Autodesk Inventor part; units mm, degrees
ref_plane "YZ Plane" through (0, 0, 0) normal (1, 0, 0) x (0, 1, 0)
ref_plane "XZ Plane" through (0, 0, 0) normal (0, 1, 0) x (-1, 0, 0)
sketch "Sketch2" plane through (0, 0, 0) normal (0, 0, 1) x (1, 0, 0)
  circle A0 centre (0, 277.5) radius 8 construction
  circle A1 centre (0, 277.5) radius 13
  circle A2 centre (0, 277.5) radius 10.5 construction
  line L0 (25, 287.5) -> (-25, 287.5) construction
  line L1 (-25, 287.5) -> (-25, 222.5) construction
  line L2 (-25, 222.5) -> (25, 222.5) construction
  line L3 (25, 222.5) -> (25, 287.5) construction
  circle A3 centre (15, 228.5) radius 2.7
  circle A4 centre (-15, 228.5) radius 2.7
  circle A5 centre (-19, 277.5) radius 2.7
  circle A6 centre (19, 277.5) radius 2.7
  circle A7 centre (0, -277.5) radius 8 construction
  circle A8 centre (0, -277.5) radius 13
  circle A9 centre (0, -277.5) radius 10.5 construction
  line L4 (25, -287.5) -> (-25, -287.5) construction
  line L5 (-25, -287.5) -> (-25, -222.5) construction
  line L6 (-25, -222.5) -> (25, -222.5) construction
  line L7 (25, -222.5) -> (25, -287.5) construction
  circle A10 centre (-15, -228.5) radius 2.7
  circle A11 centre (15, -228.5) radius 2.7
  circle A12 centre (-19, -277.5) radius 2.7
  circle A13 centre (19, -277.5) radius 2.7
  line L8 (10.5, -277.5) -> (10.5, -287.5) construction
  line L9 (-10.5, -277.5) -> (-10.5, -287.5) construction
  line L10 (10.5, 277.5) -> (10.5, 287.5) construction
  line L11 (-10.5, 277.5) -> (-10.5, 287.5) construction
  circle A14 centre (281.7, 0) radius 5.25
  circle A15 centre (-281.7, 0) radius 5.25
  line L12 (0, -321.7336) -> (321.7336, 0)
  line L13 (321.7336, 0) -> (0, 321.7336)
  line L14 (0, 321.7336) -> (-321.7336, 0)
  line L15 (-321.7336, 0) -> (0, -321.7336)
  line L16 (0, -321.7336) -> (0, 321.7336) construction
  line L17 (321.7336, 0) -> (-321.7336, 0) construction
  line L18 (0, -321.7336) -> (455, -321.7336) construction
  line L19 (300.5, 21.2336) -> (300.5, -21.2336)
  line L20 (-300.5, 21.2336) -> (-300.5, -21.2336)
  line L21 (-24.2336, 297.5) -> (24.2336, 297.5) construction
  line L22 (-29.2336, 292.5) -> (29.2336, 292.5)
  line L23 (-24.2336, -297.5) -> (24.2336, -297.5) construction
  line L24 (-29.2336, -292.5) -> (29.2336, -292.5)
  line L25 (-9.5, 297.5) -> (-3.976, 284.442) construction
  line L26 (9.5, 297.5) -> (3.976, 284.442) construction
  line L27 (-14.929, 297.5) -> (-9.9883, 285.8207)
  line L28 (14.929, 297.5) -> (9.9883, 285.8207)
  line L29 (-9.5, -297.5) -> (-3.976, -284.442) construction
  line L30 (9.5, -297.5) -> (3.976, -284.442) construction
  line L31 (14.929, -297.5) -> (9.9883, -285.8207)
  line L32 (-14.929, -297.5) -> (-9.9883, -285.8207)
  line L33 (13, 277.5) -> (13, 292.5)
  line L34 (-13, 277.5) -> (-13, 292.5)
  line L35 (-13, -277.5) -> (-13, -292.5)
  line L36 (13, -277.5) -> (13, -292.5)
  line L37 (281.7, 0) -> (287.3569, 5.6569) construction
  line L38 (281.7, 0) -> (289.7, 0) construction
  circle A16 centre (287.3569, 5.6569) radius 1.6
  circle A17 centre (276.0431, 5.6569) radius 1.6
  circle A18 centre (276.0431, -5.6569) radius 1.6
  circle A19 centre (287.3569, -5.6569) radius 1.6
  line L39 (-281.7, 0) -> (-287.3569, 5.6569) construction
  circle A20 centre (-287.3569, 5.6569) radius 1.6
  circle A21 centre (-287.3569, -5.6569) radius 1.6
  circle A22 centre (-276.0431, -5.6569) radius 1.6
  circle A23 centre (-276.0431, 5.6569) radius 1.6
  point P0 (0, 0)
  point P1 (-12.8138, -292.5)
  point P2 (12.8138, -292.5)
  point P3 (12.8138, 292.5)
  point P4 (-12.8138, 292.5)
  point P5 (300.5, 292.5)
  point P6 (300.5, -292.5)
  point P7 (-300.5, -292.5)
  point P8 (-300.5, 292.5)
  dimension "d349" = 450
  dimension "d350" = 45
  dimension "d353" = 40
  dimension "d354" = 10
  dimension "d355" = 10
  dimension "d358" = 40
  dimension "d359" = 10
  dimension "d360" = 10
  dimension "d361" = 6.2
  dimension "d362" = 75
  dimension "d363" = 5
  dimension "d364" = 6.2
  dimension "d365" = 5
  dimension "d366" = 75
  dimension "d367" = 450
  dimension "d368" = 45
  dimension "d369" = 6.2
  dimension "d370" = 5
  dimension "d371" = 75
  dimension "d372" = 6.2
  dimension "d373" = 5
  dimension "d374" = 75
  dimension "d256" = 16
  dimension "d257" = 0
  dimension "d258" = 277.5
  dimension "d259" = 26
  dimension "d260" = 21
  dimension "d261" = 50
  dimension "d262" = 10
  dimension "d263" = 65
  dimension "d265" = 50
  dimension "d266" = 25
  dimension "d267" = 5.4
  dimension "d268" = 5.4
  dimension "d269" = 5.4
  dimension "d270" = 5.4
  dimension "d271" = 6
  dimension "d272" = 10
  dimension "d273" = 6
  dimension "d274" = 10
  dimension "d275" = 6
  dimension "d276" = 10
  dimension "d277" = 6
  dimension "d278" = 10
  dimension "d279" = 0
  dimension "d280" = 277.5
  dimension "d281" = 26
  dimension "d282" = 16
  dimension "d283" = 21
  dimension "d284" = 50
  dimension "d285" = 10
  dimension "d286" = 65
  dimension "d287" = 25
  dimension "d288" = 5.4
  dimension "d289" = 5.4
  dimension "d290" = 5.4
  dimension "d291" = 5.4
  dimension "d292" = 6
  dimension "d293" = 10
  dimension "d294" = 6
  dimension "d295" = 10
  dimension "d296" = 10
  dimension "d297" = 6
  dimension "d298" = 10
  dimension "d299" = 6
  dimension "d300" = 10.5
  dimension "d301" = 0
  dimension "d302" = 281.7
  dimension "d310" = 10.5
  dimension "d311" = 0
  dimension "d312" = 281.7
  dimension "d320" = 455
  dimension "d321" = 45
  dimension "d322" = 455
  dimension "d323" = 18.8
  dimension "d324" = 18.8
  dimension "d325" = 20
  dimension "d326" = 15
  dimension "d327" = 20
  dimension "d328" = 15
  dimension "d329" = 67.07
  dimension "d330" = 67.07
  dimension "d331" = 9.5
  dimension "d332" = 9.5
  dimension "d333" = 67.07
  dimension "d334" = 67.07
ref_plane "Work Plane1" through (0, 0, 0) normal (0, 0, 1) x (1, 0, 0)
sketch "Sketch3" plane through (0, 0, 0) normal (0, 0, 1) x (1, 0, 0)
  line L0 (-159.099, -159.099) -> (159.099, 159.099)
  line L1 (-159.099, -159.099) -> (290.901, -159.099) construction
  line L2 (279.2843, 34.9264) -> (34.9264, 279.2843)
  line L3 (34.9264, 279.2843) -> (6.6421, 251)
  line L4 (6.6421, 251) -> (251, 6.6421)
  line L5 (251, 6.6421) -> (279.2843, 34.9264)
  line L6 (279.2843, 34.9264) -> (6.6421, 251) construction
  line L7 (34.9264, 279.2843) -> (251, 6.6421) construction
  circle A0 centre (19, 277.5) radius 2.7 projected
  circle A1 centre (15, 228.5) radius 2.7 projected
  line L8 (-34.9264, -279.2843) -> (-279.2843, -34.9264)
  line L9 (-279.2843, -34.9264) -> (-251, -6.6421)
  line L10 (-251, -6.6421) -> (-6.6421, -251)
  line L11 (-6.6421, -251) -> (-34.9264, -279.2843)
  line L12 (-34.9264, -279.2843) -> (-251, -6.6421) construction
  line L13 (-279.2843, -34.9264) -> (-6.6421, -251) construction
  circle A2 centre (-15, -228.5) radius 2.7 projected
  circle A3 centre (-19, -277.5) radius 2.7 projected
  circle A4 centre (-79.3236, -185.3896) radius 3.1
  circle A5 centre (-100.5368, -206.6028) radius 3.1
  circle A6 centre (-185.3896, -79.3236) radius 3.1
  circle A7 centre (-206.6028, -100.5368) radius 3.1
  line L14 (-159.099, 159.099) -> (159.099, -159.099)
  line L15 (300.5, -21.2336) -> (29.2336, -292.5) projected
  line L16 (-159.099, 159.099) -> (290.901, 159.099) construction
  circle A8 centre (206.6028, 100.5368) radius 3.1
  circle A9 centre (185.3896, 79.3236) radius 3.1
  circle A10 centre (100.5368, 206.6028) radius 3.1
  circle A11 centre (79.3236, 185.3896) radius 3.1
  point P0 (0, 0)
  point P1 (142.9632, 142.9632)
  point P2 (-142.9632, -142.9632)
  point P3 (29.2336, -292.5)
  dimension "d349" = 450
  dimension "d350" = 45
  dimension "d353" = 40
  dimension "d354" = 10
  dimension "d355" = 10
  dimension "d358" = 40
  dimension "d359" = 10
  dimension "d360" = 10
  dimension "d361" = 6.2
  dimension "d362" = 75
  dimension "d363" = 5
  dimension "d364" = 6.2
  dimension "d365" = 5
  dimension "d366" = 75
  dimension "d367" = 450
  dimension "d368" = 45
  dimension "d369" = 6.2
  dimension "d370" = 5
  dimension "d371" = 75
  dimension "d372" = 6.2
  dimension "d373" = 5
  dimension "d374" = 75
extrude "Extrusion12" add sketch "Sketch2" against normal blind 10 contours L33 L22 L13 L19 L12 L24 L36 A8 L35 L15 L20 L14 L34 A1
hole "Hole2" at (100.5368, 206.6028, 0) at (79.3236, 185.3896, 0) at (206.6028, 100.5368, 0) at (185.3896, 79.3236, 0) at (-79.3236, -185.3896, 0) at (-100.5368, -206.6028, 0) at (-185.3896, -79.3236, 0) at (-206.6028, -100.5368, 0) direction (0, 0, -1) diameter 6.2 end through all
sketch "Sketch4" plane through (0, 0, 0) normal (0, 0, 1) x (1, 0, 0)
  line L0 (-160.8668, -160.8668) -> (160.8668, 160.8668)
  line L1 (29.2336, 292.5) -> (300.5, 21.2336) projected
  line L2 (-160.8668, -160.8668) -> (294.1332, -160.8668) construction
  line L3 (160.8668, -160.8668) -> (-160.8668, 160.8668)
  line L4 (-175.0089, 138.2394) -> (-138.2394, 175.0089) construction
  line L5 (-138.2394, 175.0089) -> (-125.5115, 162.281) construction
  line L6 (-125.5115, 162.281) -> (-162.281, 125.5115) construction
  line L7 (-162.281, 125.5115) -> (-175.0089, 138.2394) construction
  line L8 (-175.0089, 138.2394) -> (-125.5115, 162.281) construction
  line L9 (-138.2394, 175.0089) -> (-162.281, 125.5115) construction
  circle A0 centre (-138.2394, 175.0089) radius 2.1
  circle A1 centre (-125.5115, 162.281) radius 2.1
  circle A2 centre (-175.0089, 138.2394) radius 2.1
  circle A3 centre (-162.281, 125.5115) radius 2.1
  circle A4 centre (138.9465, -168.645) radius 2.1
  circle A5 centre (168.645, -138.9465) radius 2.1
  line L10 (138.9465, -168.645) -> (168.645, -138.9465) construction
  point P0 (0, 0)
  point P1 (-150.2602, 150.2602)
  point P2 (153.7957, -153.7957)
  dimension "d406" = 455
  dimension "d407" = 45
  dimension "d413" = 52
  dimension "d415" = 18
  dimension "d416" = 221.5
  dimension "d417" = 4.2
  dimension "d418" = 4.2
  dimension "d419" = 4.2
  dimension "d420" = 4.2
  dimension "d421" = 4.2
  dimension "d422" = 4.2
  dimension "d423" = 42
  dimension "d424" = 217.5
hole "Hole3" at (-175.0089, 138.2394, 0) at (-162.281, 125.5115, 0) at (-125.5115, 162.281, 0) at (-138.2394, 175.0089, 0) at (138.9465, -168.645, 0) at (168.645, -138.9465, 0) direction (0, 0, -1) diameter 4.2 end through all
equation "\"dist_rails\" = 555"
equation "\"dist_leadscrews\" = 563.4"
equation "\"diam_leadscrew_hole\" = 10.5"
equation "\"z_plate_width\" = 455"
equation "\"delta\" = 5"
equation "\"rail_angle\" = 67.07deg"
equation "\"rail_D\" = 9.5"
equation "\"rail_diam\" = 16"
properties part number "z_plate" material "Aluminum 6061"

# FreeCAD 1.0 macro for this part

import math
import FreeCAD as App
import Part
import Sketcher
from FreeCAD import Vector
Q = App.Units.Quantity

doc = App.newDocument("Part")
body = doc.addObject("PartDesign::Body", "Body")

# Sketch on XY plane
sketch1 = body.newObject("Sketcher::SketchObject", "Sketch")
sketch1.AttachmentSupport = (doc.getObject("XY_Plane"), [""])
sketch1.MapMode = "FlatFace"
sketch1.addGeometry([
    Part.LineSegment(Vector(13, 292.5, 0), Vector(13, 277.5, 0)),  # 0
    Part.ArcOfCircle(Part.Circle(Vector(0, 277.5, 0), Vector(0, 0, 1), 13), math.radians(180), math.radians(360)),  # 1
    Part.LineSegment(Vector(-13, 277.5, 0), Vector(-13, 292.5, 0)),  # 2
    Part.LineSegment(Vector(-13, 292.5, 0), Vector(-29.2, 292.5, 0)),  # 3
    Part.LineSegment(Vector(-29.2, 292.5, 0), Vector(-300.5, 21.2, 0)),  # 4
    Part.LineSegment(Vector(-300.5, 21.2, 0), Vector(-300.5, -21.2, 0)),  # 5
    Part.LineSegment(Vector(-300.5, -21.2, 0), Vector(-29.2, -292.5, 0)),  # 6
    Part.LineSegment(Vector(-29.2, -292.5, 0), Vector(-13, -292.5, 0)),  # 7
    Part.LineSegment(Vector(-13, -292.5, 0), Vector(-13, -277.5, 0)),  # 8
    Part.ArcOfCircle(Part.Circle(Vector(0, -277.5, 0), Vector(0, 0, 1), 13), math.radians(0), math.radians(180)),  # 9
    Part.LineSegment(Vector(13, -277.5, 0), Vector(13, -292.5, 0)),  # 10
    Part.LineSegment(Vector(13, -292.5, 0), Vector(29.2, -292.5, 0)),  # 11
    Part.LineSegment(Vector(29.2, -292.5, 0), Vector(300.5, -21.2, 0)),  # 12
    Part.LineSegment(Vector(300.5, -21.2, 0), Vector(300.5, 21.2, 0)),  # 13
    Part.LineSegment(Vector(300.5, 21.2, 0), Vector(29.2, 292.5, 0)),  # 14
    Part.LineSegment(Vector(29.2, 292.5, 0), Vector(13, 292.5, 0)),  # 15
    Part.Circle(Vector(-19, -277.5, 0), Vector(0, 0, 1), 2.7),  # 16
    Part.Circle(Vector(-15, -228.5, 0), Vector(0, 0, 1), 2.7),  # 17
    Part.Circle(Vector(-287.4, -5.7, 0), Vector(0, 0, 1), 1.6),  # 18
    Part.Circle(Vector(-276, -5.7, 0), Vector(0, 0, 1), 1.6),  # 19
    Part.Circle(Vector(19, -277.5, 0), Vector(0, 0, 1), 2.7),  # 20
    Part.Circle(Vector(15, -228.5, 0), Vector(0, 0, 1), 2.7),  # 21
    Part.Circle(Vector(276, -5.7, 0), Vector(0, 0, 1), 1.6),  # 22
    Part.Circle(Vector(287.4, -5.7, 0), Vector(0, 0, 1), 1.6),  # 23
    Part.Circle(Vector(-281.7, 0, 0), Vector(0, 0, 1), 5.2),  # 24
    Part.Circle(Vector(-287.4, 5.7, 0), Vector(0, 0, 1), 1.6),  # 25
    Part.Circle(Vector(-276, 5.7, 0), Vector(0, 0, 1), 1.6),  # 26
    Part.Circle(Vector(-15, 228.5, 0), Vector(0, 0, 1), 2.7),  # 27
    Part.Circle(Vector(-19, 277.5, 0), Vector(0, 0, 1), 2.7),  # 28
    Part.Circle(Vector(276, 5.7, 0), Vector(0, 0, 1), 1.6),  # 29
    Part.Circle(Vector(281.7, 0, 0), Vector(0, 0, 1), 5.2),  # 30
    Part.Circle(Vector(287.4, 5.7, 0), Vector(0, 0, 1), 1.6),  # 31
    Part.Circle(Vector(15, 228.5, 0), Vector(0, 0, 1), 2.7),  # 32
    Part.Circle(Vector(19, 277.5, 0), Vector(0, 0, 1), 2.7),  # 33
], False)
sketch1.addConstraint([
    Sketcher.Constraint("Tangent", 0, 2, 1, 2),
    Sketcher.Constraint("Tangent", 1, 1, 2, 1),
    Sketcher.Constraint("Coincident", 2, 2, 3, 1),
    Sketcher.Constraint("Coincident", 3, 2, 4, 1),
    Sketcher.Constraint("Coincident", 4, 2, 5, 1),
    Sketcher.Constraint("Coincident", 5, 2, 6, 1),
    Sketcher.Constraint("Coincident", 6, 2, 7, 1),
    Sketcher.Constraint("Coincident", 7, 2, 8, 1),
    Sketcher.Constraint("Tangent", 8, 2, 9, 2),
    Sketcher.Constraint("Tangent", 9, 1, 10, 1),
    Sketcher.Constraint("Coincident", 10, 2, 11, 1),
    Sketcher.Constraint("Coincident", 11, 2, 12, 1),
    Sketcher.Constraint("Coincident", 12, 2, 13, 1),
    Sketcher.Constraint("Coincident", 13, 2, 14, 1),
    Sketcher.Constraint("Coincident", 14, 2, 15, 1),
    Sketcher.Constraint("Coincident", 15, 2, 0, 1),
    Sketcher.Constraint("Vertical", 0),
    Sketcher.Constraint("Vertical", 2),
    Sketcher.Constraint("Horizontal", 3),
    Sketcher.Constraint("Vertical", 5),
    Sketcher.Constraint("Horizontal", 7),
    Sketcher.Constraint("Vertical", 8),
    Sketcher.Constraint("Vertical", 10),
    Sketcher.Constraint("Horizontal", 11),
    Sketcher.Constraint("Vertical", 13),
    Sketcher.Constraint("Horizontal", 15),
    Sketcher.Constraint("Equal", 1, 9),
    Sketcher.Constraint("Equal", 16, 17),
    Sketcher.Constraint("Equal", 18, 19),
    Sketcher.Constraint("Equal", 17, 20),
    Sketcher.Constraint("Equal", 20, 21),
    Sketcher.Constraint("Equal", 19, 22),
    Sketcher.Constraint("Equal", 22, 23),
    Sketcher.Constraint("Equal", 23, 25),
    Sketcher.Constraint("Equal", 25, 26),
    Sketcher.Constraint("Equal", 21, 27),
    Sketcher.Constraint("Equal", 27, 28),
    Sketcher.Constraint("Equal", 26, 29),
    Sketcher.Constraint("Equal", 24, 30),
    Sketcher.Constraint("Equal", 29, 31),
    Sketcher.Constraint("Equal", 28, 32),
    Sketcher.Constraint("Equal", 32, 33),
    Sketcher.Constraint("Symmetric", 1, 3, 9, 3, -1, 1),
    Sketcher.Constraint("Symmetric", 23, 3, 25, 3, -1, 1),
    Sketcher.Constraint("Symmetric", 22, 3, 26, 3, -1, 1),
    Sketcher.Constraint("Symmetric", 21, 3, 27, 3, -1, 1),
    Sketcher.Constraint("Symmetric", 20, 3, 28, 3, -1, 1),
    Sketcher.Constraint("Symmetric", 19, 3, 29, 3, -1, 1),
    Sketcher.Constraint("Symmetric", 24, 3, 30, 3, -1, 1),
    Sketcher.Constraint("Symmetric", 18, 3, 31, 3, -1, 1),
    Sketcher.Constraint("Symmetric", 17, 3, 32, 3, -1, 1),
    Sketcher.Constraint("Symmetric", 16, 3, 33, 3, -1, 1),
    Sketcher.Constraint("Symmetric", 3, 2, 11, 2, -1, 1),
    Sketcher.Constraint("Symmetric", 4, 2, 12, 2, -1, 1),
    Sketcher.Constraint("Symmetric", 6, 2, 14, 2, -1, 1),
    Sketcher.Constraint("Symmetric", 16, 3, 20, 3, -2),
    Sketcher.Constraint("Symmetric", 17, 3, 21, 3, -2),
    Sketcher.Constraint("Symmetric", 19, 3, 22, 3, -2),
    Sketcher.Constraint("Symmetric", 18, 3, 23, 3, -2),
    Sketcher.Constraint("Symmetric", 7, 2, 10, 2, -2),
    Sketcher.Constraint("PointOnObject", 24, 3, -1),
    Sketcher.Constraint("Perpendicular", 4, 6),
    Sketcher.Constraint("Perpendicular", 12, 14),
    Sketcher.Constraint("Horizontal", 9, 3, 16, 3),
    Sketcher.Constraint("Horizontal", 18, 3, 19, 3),
    Sketcher.Constraint("Horizontal", 5, 2, 12, 2),
    Sketcher.Constraint("Vertical", 3, 2, 6, 2),
    Sketcher.Constraint("Radius", 1, Q("13 mm")),
    Sketcher.Constraint("Diameter", 16, Q("5.4 mm")),
    Sketcher.Constraint("Diameter", 24, Q("10.5 mm")),
    Sketcher.Constraint("DistanceY", 0, 2, 0, 1, Q("15 mm")),
    Sketcher.Constraint("DistanceX", 17, 3, -1, 1, Q("15 mm")),
    Sketcher.Constraint("DistanceX", 0, 2, 33, 3, Q("6 mm")),
    Sketcher.Constraint("Diameter", 18, Q("3.2 mm")),
    Sketcher.Constraint("DistanceY", -1, 1, 1, 3, Q("277.5 mm")),
    Sketcher.Constraint("DistanceX", 24, 3, -1, 1, Q("281.7 mm")),
    Sketcher.Constraint("DistanceX", 4, 2, 24, 3, Q("18.8 mm")),
    Sketcher.Constraint("DistanceY", 16, 3, 17, 3, Q("49 mm")),
    Sketcher.Constraint("DistanceX", 3, 2, 3, 1, Q("16.2336 mm")),
    Sketcher.Constraint("DistanceX", 18, 3, -1, 1, Q("287.357 mm")),
    Sketcher.Constraint("DistanceY", 18, 3, -1, 1, Q("5.657 mm")),
    Sketcher.Constraint("DistanceX", 19, 3, -1, 1, Q("276.043 mm")),
])
pad1 = body.newObject("PartDesign::Pad", "Pad")
pad1.Profile = sketch1
pad1.Length = 10
pad1.Reversed = True

# Sketch on XY plane
sketch2 = body.newObject("Sketcher::SketchObject", "Sketch001")
sketch2.AttachmentSupport = (doc.getObject("XY_Plane"), [""])
sketch2.MapMode = "FlatFace"
sketch2.addGeometry([
    Part.Circle(Vector(100.5, 206.6, 0), Vector(0, 0, 1), 3.1),  # 0
    Part.Circle(Vector(79.3, 185.4, 0), Vector(0, 0, 1), 3.1),  # 1
    Part.Circle(Vector(206.6, 100.5, 0), Vector(0, 0, 1), 3.1),  # 2
    Part.Circle(Vector(185.4, 79.3, 0), Vector(0, 0, 1), 3.1),  # 3
    Part.Circle(Vector(-79.3, -185.4, 0), Vector(0, 0, 1), 3.1),  # 4
    Part.Circle(Vector(-100.5, -206.6, 0), Vector(0, 0, 1), 3.1),  # 5
    Part.Circle(Vector(-185.4, -79.3, 0), Vector(0, 0, 1), 3.1),  # 6
    Part.Circle(Vector(-206.6, -100.5, 0), Vector(0, 0, 1), 3.1),  # 7
], False)
sketch2.addConstraint([
    Sketcher.Constraint("Equal", 0, 1),
    Sketcher.Constraint("Equal", 1, 2),
    Sketcher.Constraint("Equal", 2, 3),
    Sketcher.Constraint("Equal", 3, 4),
    Sketcher.Constraint("Equal", 4, 5),
    Sketcher.Constraint("Equal", 5, 6),
    Sketcher.Constraint("Equal", 6, 7),
    Sketcher.Constraint("Symmetric", 1, 3, 4, 3, -1, 1),
    Sketcher.Constraint("Symmetric", 0, 3, 5, 3, -1, 1),
    Sketcher.Constraint("Symmetric", 3, 3, 6, 3, -1, 1),
    Sketcher.Constraint("Symmetric", 2, 3, 7, 3, -1, 1),
    Sketcher.Constraint("Diameter", 0, Q("6.2 mm")),
    Sketcher.Constraint("DistanceX", 0, 3, 2, 3, Q("106.066 mm")),
    Sketcher.Constraint("DistanceY", 2, 3, 0, 3, Q("106.066 mm")),
    Sketcher.Constraint("DistanceX", 1, 3, 3, 3, Q("106.066 mm")),
    Sketcher.Constraint("DistanceY", 3, 3, 1, 3, Q("106.066 mm")),
    Sketcher.Constraint("DistanceX", -1, 1, 0, 3, Q("100.5368 mm")),
    Sketcher.Constraint("DistanceY", -1, 1, 0, 3, Q("206.6028 mm")),
    Sketcher.Constraint("DistanceX", -1, 1, 1, 3, Q("79.3236 mm")),
    Sketcher.Constraint("DistanceY", -1, 1, 1, 3, Q("185.3896 mm")),
])
doc.recompute()
hole = body.newObject("PartDesign::Hole", "Hole")
hole.Profile = sketch2
hole.ThreadType = "None"
hole.Diameter = 6.2
hole.DepthType = "ThroughAll"

# Sketch on XY plane
sketch3 = body.newObject("Sketcher::SketchObject", "Sketch002")
sketch3.AttachmentSupport = (doc.getObject("XY_Plane"), [""])
sketch3.MapMode = "FlatFace"
sketch3.addGeometry([
    Part.Circle(Vector(-175, 138.2, 0), Vector(0, 0, 1), 2.1),  # 0
    Part.Circle(Vector(-162.3, 125.5, 0), Vector(0, 0, 1), 2.1),  # 1
    Part.Circle(Vector(-125.5, 162.3, 0), Vector(0, 0, 1), 2.1),  # 2
    Part.Circle(Vector(-138.2, 175, 0), Vector(0, 0, 1), 2.1),  # 3
    Part.Circle(Vector(138.9, -168.6, 0), Vector(0, 0, 1), 2.1),  # 4
    Part.Circle(Vector(168.6, -138.9, 0), Vector(0, 0, 1), 2.1),  # 5
], False)
sketch3.addConstraint([
    Sketcher.Constraint("Equal", 0, 1),
    Sketcher.Constraint("Equal", 1, 2),
    Sketcher.Constraint("Equal", 2, 3),
    Sketcher.Constraint("Equal", 3, 4),
    Sketcher.Constraint("Equal", 4, 5),
    Sketcher.Constraint("Diameter", 0, Q("4.2 mm")),
    Sketcher.Constraint("DistanceX", 0, 3, -1, 1, Q("175.009 mm")),
    Sketcher.Constraint("DistanceX", 1, 3, -1, 1, Q("162.281 mm")),
    Sketcher.Constraint("DistanceY", -1, 1, 2, 3, Q("162.281 mm")),
    Sketcher.Constraint("DistanceY", -1, 1, 3, 3, Q("175.009 mm")),
    Sketcher.Constraint("DistanceY", 4, 3, -1, 1, Q("168.645 mm")),
    Sketcher.Constraint("DistanceX", -1, 1, 5, 3, Q("168.645 mm")),
    Sketcher.Constraint("DistanceY", 1, 3, 0, 3, Q("12.728 mm")),
    Sketcher.Constraint("DistanceX", 3, 3, 2, 3, Q("12.728 mm")),
    Sketcher.Constraint("DistanceX", 2, 3, 4, 3, Q("264.458 mm")),
    Sketcher.Constraint("DistanceY", 5, 3, 1, 3, Q("264.458 mm")),
    Sketcher.Constraint("DistanceY", -1, 1, 0, 3, Q("138.2394 mm")),
    Sketcher.Constraint("DistanceX", 2, 3, -1, 1, Q("125.5115 mm")),
])
doc.recompute()
hole2 = body.newObject("PartDesign::Hole", "Hole001")
hole2.Profile = sketch3
hole2.ThreadType = "None"
hole2.Diameter = 4.2
hole2.DepthType = "ThroughAll"

doc.recompute()
